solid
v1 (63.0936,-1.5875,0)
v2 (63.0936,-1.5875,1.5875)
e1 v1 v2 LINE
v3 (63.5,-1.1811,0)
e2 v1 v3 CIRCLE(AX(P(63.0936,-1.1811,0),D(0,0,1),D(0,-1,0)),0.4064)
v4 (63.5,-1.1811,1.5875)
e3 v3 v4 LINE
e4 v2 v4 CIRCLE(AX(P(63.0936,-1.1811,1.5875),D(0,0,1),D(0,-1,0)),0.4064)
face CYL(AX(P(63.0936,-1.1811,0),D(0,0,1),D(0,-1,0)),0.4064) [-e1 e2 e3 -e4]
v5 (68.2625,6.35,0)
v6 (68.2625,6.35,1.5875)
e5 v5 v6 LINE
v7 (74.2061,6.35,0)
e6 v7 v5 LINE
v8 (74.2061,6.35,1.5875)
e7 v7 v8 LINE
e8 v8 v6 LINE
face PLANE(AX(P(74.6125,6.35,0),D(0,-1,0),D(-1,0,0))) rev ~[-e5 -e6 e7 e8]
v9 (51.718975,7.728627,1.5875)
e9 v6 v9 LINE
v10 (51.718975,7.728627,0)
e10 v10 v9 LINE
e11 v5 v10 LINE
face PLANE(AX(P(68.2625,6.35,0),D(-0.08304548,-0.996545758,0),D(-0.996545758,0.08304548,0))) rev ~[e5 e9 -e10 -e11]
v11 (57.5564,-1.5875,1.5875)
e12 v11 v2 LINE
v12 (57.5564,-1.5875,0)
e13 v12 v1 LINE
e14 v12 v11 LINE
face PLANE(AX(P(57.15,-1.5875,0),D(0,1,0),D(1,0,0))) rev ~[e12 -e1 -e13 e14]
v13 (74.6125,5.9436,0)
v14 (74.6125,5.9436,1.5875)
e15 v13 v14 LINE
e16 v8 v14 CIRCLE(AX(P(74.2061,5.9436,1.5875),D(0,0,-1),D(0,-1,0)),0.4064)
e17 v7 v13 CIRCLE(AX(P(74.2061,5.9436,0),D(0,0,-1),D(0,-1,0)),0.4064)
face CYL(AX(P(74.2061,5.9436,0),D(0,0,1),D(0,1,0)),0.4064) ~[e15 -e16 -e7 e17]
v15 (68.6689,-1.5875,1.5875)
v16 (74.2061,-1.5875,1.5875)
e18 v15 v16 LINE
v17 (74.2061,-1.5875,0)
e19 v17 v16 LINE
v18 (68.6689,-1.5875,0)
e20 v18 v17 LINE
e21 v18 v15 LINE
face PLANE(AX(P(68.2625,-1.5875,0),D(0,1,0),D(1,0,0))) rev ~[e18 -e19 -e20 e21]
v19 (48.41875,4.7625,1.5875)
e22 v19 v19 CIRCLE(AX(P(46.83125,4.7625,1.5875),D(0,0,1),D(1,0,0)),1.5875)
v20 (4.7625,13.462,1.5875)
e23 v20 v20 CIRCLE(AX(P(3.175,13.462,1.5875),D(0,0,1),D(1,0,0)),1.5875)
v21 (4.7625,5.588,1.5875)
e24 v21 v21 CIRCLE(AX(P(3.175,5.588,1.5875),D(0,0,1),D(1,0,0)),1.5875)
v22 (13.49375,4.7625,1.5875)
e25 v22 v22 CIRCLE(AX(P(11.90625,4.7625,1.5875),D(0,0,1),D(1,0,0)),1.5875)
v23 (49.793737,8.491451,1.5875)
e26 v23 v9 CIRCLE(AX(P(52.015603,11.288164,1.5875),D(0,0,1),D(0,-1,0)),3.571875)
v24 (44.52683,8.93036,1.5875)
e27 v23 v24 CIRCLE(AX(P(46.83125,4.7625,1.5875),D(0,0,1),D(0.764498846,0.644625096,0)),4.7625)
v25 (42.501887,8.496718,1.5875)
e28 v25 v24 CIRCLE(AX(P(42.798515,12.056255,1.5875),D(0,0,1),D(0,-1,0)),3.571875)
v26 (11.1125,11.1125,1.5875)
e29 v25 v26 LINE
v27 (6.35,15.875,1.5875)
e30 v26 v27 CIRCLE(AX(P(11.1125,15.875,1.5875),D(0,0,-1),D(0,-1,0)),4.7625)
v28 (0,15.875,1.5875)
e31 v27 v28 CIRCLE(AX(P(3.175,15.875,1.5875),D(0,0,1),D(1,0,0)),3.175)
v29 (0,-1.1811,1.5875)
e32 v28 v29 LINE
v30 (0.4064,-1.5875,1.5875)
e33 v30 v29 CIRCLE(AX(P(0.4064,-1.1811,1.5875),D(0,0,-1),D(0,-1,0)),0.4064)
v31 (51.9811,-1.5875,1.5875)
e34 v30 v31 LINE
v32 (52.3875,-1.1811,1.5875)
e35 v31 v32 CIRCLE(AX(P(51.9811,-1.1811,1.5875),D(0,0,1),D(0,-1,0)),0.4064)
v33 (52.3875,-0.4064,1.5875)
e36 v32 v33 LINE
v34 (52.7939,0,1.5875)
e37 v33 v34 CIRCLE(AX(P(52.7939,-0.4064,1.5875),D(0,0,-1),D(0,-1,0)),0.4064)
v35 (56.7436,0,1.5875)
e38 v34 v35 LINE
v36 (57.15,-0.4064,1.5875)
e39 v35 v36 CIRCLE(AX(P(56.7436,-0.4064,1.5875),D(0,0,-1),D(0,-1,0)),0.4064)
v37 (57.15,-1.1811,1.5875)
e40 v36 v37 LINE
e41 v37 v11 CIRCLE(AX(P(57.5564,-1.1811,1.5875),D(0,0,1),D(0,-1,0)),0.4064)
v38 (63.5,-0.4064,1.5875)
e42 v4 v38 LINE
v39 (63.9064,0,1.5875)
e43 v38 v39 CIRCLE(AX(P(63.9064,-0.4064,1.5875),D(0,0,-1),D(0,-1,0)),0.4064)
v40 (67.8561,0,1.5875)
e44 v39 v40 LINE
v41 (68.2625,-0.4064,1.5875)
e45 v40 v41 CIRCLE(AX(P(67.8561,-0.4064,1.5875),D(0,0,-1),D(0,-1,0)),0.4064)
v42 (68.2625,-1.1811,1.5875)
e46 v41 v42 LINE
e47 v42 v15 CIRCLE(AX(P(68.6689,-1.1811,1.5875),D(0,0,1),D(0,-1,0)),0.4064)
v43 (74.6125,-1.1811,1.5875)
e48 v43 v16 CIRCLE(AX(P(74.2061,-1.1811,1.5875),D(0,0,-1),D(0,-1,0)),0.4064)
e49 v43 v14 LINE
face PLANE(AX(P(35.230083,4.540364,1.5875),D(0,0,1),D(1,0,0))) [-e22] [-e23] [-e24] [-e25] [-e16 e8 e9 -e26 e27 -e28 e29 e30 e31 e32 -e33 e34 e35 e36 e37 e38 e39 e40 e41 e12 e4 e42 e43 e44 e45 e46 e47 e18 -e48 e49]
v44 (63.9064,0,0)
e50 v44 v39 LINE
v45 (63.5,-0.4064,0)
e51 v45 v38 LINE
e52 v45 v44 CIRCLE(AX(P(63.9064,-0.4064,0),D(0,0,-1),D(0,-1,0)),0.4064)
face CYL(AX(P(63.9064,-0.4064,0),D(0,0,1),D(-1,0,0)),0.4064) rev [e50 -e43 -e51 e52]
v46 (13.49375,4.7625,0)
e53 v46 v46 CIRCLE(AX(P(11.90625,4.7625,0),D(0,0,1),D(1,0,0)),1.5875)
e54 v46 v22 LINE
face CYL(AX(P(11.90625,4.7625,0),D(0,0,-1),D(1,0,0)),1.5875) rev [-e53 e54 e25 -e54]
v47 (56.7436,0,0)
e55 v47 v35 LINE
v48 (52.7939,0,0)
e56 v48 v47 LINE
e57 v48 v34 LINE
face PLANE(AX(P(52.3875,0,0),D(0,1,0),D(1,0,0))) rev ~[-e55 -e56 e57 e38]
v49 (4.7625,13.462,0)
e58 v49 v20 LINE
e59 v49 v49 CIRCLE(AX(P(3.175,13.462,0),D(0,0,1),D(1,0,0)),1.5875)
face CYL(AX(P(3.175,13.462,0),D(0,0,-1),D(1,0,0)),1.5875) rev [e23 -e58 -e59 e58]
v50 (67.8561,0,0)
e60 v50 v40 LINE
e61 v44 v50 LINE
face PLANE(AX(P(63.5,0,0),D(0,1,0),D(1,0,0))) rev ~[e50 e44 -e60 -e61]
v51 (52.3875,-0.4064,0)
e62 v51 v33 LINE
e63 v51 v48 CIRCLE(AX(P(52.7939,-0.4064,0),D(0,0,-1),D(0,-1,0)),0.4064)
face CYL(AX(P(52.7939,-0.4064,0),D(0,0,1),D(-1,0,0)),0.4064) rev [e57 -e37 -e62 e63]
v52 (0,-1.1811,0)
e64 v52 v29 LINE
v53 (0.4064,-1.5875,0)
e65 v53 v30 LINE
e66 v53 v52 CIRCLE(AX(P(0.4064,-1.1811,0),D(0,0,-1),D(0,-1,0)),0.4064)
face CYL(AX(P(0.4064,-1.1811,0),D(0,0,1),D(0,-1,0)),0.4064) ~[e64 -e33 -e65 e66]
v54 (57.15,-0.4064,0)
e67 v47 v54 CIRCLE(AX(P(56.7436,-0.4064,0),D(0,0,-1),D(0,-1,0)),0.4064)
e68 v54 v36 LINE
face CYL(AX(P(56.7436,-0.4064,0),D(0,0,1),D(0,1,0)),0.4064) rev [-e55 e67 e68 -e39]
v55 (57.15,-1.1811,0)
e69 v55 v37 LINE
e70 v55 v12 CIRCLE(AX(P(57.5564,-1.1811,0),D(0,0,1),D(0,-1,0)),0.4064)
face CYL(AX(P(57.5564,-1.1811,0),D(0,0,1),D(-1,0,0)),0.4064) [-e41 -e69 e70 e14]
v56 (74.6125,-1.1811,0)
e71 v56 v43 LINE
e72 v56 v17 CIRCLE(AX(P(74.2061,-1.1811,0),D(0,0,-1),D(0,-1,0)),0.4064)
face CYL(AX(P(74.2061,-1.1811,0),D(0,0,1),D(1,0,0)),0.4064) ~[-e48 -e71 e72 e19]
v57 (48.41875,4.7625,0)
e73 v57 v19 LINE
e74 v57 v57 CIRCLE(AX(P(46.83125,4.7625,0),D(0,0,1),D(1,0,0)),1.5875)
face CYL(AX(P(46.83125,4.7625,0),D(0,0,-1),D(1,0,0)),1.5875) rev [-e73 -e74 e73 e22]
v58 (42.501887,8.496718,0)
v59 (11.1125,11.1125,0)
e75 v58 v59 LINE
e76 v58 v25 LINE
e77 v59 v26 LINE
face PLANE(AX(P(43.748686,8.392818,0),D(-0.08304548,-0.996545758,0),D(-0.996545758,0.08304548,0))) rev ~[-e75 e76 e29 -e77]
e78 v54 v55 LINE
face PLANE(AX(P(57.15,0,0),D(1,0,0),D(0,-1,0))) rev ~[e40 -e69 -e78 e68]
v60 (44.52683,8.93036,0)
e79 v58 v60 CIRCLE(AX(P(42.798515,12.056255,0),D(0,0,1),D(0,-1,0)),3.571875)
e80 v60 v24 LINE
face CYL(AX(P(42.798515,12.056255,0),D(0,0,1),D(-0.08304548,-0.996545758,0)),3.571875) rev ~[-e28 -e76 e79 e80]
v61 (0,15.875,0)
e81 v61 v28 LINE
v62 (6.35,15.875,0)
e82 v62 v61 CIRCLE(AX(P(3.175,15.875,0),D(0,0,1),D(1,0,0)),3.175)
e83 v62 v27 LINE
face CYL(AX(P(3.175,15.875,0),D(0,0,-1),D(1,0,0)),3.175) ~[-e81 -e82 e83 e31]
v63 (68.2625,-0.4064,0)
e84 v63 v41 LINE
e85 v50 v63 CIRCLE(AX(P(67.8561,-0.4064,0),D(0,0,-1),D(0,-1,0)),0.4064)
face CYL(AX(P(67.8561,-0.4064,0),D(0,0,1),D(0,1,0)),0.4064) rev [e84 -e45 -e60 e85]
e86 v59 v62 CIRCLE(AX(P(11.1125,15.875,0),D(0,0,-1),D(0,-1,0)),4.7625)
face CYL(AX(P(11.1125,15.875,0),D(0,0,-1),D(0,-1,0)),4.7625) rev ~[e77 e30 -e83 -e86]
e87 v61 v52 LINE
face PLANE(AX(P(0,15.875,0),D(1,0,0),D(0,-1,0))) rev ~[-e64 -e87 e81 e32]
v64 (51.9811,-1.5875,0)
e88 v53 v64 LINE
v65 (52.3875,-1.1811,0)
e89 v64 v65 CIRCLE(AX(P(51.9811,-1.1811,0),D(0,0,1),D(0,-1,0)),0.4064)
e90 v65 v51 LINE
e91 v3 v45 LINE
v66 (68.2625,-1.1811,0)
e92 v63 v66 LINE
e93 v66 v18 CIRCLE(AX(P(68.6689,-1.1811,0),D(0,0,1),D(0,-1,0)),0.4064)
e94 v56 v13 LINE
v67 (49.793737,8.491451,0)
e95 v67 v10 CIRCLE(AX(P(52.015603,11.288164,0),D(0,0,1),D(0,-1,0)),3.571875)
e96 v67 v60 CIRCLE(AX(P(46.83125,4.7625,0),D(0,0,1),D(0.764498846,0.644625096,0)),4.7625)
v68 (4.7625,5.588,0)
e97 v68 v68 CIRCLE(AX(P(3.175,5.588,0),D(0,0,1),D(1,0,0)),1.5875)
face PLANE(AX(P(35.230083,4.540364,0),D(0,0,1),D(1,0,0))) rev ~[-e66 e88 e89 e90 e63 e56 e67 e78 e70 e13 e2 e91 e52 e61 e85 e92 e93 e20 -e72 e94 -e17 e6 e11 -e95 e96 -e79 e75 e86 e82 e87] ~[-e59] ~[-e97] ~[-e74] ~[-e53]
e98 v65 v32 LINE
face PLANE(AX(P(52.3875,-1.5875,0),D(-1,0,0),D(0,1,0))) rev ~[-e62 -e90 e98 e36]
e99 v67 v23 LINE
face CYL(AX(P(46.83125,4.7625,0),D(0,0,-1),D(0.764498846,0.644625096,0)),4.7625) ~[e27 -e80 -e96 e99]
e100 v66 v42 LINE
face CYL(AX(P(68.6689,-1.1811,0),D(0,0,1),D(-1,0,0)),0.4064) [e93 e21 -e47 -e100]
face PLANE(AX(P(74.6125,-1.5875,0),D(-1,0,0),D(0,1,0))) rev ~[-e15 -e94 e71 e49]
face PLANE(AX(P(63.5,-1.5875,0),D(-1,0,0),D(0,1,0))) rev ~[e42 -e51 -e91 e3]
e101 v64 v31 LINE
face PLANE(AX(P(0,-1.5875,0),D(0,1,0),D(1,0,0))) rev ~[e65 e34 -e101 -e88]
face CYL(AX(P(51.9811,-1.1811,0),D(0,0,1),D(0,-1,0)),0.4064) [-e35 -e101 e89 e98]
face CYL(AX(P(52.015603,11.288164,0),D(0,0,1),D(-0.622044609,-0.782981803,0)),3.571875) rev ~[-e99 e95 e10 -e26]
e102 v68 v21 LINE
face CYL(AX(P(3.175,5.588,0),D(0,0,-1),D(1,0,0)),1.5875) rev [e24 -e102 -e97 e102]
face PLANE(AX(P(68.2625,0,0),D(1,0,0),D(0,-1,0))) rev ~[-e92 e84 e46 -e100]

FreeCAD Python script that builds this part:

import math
import FreeCAD as App
import Part
import Sketcher

V = App.Vector
Q = App.Units.Quantity


def edges_at(feature, points):
    """Names of the edges that pass closest to the given points."""
    edges = feature.Shape.Edges
    near = lambda p: min(range(len(edges)), key=lambda i: edges[i].distToShape(Part.Vertex(*p))[0])
    return sorted({f"Edge{near(p) + 1}" for p in points})

doc = App.newDocument("Part")
body = doc.addObject("PartDesign::Body", "Body")

# Sketch on XY plane
sketch1 = doc.addObject("Sketcher::SketchObject", "Sketch")
body.addObject(sketch1)
sketch1.AttachmentSupport = (doc.XY_Plane, [""])
sketch1.MapMode = "FlatFace"
sketch1.addGeometry([
    Part.LineSegment(V(0, -1.6, 0), V(52.4, -1.6, 0)),  # 0
    Part.LineSegment(V(52.4, -1.6, 0), V(52.4, 0, 0)),  # 1
    Part.LineSegment(V(52.4, 0, 0), V(57.1, 0, 0)),  # 2
    Part.LineSegment(V(57.1, 0, 0), V(57.1, -1.6, 0)),  # 3
    Part.LineSegment(V(57.1, -1.6, 0), V(63.5, -1.6, 0)),  # 4
    Part.LineSegment(V(63.5, -1.6, 0), V(63.5, 0, 0)),  # 5
    Part.LineSegment(V(63.5, 0, 0), V(68.3, 0, 0)),  # 6
    Part.LineSegment(V(68.3, 0, 0), V(68.3, -1.6, 0)),  # 7
    Part.LineSegment(V(68.3, -1.6, 0), V(74.6, -1.6, 0)),  # 8
    Part.LineSegment(V(74.6, -1.6, 0), V(74.6, 6.3, 0)),  # 9
    Part.LineSegment(V(74.6, 6.3, 0), V(68.3, 6.3, 0)),  # 10
    Part.LineSegment(V(68.3, 6.3, 0), V(50.5, 7.8, 0)),  # 11
    Part.ArcOfCircle(Part.Circle(V(46.8, 4.8, 0), V(0, 0, 1), 4.8), math.radians(40), math.radians(130)),  # 12
    Part.LineSegment(V(43.7, 8.4, 0), V(11.1, 11.1, 0)),  # 13
    Part.ArcOfCircle(Part.Circle(V(11.1, 15.9, 0), V(0, 0, 1), 4.8), math.radians(-180), math.radians(-90)),  # 14
    Part.ArcOfCircle(Part.Circle(V(3.2, 15.9, 0), V(0, 0, 1), 3.2), math.radians(0), math.radians(180)),  # 15
    Part.LineSegment(V(0, 15.9, 0), V(0, -1.6, 0)),  # 16
    Part.Circle(V(3.2, 5.6, 0), V(0, 0, 1), 1.6),  # 17
    Part.Circle(V(11.9, 4.8, 0), V(0, 0, 1), 1.6),  # 18
    Part.Circle(V(46.8, 4.8, 0), V(0, 0, 1), 1.6),  # 19
    Part.Circle(V(3.2, 13.5, 0), V(0, 0, 1), 1.6),  # 20
], False)
sketch1.addConstraint([
    Sketcher.Constraint("Coincident", 0, 2, 1, 1),
    Sketcher.Constraint("Coincident", 1, 2, 2, 1),
    Sketcher.Constraint("Coincident", 2, 2, 3, 1),
    Sketcher.Constraint("Coincident", 3, 2, 4, 1),
    Sketcher.Constraint("Coincident", 4, 2, 5, 1),
    Sketcher.Constraint("Coincident", 5, 2, 6, 1),
    Sketcher.Constraint("Coincident", 6, 2, 7, 1),
    Sketcher.Constraint("Coincident", 7, 2, 8, 1),
    Sketcher.Constraint("Coincident", 8, 2, 9, 1),
    Sketcher.Constraint("Coincident", 9, 2, 10, 1),
    Sketcher.Constraint("Coincident", 10, 2, 11, 1),
    Sketcher.Constraint("Coincident", 11, 2, 12, 1),
    Sketcher.Constraint("Coincident", 12, 2, 13, 1),
    Sketcher.Constraint("Coincident", 13, 2, 14, 2),
    Sketcher.Constraint("Tangent", 14, 1, 15, 1),
    Sketcher.Constraint("Tangent", 15, 2, 16, 1),
    Sketcher.Constraint("Coincident", 16, 2, 0, 1),
    Sketcher.Constraint("Horizontal", 0),
    Sketcher.Constraint("Vertical", 1),
    Sketcher.Constraint("Horizontal", 2),
    Sketcher.Constraint("Vertical", 3),
    Sketcher.Constraint("Horizontal", 4),
    Sketcher.Constraint("Vertical", 5),
    Sketcher.Constraint("Horizontal", 6),
    Sketcher.Constraint("Vertical", 7),
    Sketcher.Constraint("Horizontal", 8),
    Sketcher.Constraint("Vertical", 9),
    Sketcher.Constraint("Horizontal", 10),
    Sketcher.Constraint("Vertical", 16),
    Sketcher.Constraint("Coincident", 19, 3, 12, 3),
    Sketcher.Constraint("Equal", 12, 14),
    Sketcher.Constraint("Equal", 17, 18),
    Sketcher.Constraint("Equal", 18, 19),
    Sketcher.Constraint("Equal", 19, 20),
    Sketcher.Constraint("PointOnObject", 1, 2, -1),
    Sketcher.Constraint("PointOnObject", 5, 2, -1),
    Sketcher.Constraint("PointOnObject", 15, 2, -2),
    Sketcher.Constraint("Parallel", 11, 13),
    Sketcher.Constraint("Horizontal", 14, 3, 15, 3),
    Sketcher.Constraint("Horizontal", 12, 3, 18, 3),
    Sketcher.Constraint("Horizontal", 0, 2, 3, 2),
    Sketcher.Constraint("Horizontal", 4, 2, 7, 2),
    Sketcher.Constraint("Vertical", 15, 3, 17, 3),
    Sketcher.Constraint("Vertical", 17, 3, 20, 3),
    Sketcher.Constraint("Vertical", 7, 2, 10, 2),
    Sketcher.Constraint("Vertical", 14, 3, 13, 2),
    Sketcher.Constraint("Equal", 2, 6),
    Sketcher.Constraint("Equal", 4, 8),
    Sketcher.Constraint("Diameter", 17, Q("0.125 in")),
    Sketcher.Constraint("Radius", 12, Q("0.1875 in")),
    Sketcher.Constraint("Radius", 15, Q("0.125 in")),
    Sketcher.Constraint("DistanceX", 4, 1, 4, 2, Q("0.25 in")),
    Sketcher.Constraint("DistanceX", -1, 1, 4, 2, Q("2.5 in")),
    Sketcher.Constraint("DistanceY", 16, 2, 13, 2, Q("0.5 in")),
    Sketcher.Constraint("DistanceX", 0, 1, 0, 2, Q("2.0625 in")),
    Sketcher.Constraint("DistanceY", 1, 1, 1, 2, Q("0.0625 in")),
    Sketcher.Constraint("DistanceY", 9, 1, 9, 2, Q("0.3125 in")),
    Sketcher.Constraint("DistanceY", -1, 1, 17, 3, Q("0.22 in")),
    Sketcher.Constraint("DistanceY", -1, 1, 20, 3, Q("0.53 in")),
    Sketcher.Constraint("DistanceY", 0, 2, 12, 3, Q("0.25 in")),
    Sketcher.Constraint("DistanceX", -1, 1, 12, 3, Q("1.84375 in")),
    Sketcher.Constraint("DistanceX", -1, 1, 18, 3, Q("0.46875 in")),
    Sketcher.Constraint("Distance", 11, Q("17.851989 mm")),
])
pad1 = doc.addObject("PartDesign::Pad", "Pad")
body.addObject(pad1)
pad1.Profile = sketch1
pad1.Length = Q("0.0625 in")
doc.recompute()

fillet = doc.addObject("PartDesign::Fillet", "Fillet")
body.addObject(fillet)
fillet.Base = (pad1, edges_at(pad1, [
    (68.263, 6.35, 0.794),
    (74.612, 6.35, 0.794),
    (74.612, -1.587, 0.794),
    (68.263, -1.587, 0.794),
    (68.263, 0, 0.794),
    (63.5, 0, 0.794),
    (63.5, -1.587, 0.794),
    (57.15, -1.587, 0.794),
    (57.15, 0, 0.794),
    (52.388, 0, 0.794),
    (52.388, -1.587, 0.794),
    (0, -1.587, 0.794),
]))
fillet.Radius = Q("0.016 in")
doc.recompute()

fillet2 = doc.addObject("PartDesign::Fillet", "Fillet001")
body.addObject(fillet2)
fillet2.Base = (fillet, edges_at(fillet, [(43.749, 8.393, 0.794), (50.472, 7.833, 0.794)]))
fillet2.Radius = Q("0.140625 in")

doc.recompute()
